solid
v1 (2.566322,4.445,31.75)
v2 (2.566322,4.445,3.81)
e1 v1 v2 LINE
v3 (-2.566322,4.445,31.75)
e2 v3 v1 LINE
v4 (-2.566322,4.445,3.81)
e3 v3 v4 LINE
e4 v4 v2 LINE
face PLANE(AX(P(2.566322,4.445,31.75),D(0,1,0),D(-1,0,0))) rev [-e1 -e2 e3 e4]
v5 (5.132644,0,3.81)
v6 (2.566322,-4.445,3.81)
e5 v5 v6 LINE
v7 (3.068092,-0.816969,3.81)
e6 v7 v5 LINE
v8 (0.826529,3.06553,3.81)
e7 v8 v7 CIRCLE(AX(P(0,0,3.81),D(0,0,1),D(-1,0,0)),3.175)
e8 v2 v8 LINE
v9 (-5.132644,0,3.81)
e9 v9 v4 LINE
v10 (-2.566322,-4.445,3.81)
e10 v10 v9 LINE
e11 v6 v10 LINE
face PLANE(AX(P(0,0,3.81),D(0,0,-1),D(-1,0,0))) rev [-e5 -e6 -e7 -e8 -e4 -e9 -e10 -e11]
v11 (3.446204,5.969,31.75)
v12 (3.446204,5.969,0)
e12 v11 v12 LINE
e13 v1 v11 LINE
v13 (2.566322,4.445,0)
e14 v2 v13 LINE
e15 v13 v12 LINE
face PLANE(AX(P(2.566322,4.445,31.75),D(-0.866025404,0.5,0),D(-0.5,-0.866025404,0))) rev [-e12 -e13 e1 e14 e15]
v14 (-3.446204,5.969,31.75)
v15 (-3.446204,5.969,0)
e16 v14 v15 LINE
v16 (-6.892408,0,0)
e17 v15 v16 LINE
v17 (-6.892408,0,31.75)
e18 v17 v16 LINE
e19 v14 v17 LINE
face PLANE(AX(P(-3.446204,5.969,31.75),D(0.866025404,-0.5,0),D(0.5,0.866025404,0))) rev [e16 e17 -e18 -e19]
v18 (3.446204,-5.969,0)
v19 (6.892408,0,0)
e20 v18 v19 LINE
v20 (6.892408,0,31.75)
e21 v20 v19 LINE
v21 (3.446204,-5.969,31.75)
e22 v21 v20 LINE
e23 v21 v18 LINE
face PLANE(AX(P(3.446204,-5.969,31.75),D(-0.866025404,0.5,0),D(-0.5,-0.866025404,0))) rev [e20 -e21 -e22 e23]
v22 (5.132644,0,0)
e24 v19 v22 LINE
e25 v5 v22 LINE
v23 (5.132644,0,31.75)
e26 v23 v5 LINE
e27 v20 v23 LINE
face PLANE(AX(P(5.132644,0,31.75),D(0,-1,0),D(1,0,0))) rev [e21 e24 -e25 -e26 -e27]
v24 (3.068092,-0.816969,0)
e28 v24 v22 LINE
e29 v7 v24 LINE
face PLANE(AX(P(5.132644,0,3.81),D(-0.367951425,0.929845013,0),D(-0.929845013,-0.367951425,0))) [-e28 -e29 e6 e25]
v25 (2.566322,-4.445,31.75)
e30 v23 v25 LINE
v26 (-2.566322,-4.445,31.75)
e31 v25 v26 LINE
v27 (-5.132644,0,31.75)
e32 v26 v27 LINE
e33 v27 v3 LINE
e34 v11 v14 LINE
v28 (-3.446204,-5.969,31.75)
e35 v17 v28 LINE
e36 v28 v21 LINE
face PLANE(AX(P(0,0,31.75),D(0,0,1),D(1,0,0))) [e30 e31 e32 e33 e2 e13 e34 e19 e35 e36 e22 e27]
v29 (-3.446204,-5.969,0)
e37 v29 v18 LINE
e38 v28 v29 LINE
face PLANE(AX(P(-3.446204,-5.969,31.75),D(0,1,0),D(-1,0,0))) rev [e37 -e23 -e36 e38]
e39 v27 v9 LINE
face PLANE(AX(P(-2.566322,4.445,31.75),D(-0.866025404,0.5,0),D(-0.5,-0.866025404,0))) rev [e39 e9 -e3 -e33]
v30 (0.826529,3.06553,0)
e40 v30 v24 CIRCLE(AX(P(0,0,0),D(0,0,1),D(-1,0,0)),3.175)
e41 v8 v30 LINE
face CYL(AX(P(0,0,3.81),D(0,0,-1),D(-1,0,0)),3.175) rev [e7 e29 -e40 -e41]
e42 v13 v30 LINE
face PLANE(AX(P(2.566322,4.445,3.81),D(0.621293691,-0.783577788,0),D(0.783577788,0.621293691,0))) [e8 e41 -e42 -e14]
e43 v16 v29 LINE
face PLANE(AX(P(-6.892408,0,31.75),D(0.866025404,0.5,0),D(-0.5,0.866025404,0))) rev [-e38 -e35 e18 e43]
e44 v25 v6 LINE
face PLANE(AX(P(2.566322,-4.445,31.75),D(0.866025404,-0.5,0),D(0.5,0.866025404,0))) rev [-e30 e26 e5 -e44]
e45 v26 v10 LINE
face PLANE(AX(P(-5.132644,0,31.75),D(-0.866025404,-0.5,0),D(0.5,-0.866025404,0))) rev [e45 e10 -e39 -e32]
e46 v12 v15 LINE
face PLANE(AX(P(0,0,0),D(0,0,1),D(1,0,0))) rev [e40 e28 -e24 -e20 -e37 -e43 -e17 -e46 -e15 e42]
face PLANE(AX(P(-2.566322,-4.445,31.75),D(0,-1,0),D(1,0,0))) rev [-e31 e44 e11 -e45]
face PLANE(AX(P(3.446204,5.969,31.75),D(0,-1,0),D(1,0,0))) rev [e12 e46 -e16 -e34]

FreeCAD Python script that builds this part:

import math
import FreeCAD as App
import Part
import Sketcher
Q = App.Units.Quantity

doc = App.newDocument("Part")
params = doc.addObject("Spreadsheet::Sheet", "Params")
for row, (alias, value) in enumerate([
    ("pad1_length", "1.25 in"),
    ("sketch2_radius", "0.125 in"),
    ("pad2_length", "0.15 in"),
], start=1):
    params.set(f"A{row}", alias)
    params.set(f"B{row}", "=" + value)
    params.setAlias(f"B{row}", alias)

body = doc.addObject("PartDesign::Body", "Body")

# Sketch on XY plane
sketch1 = doc.addObject("Sketcher::SketchObject", "Sketch")
body.addObject(sketch1)
sketch1.AttachmentSupport = (doc.XY_Plane, [""])
sketch1.MapMode = "FlatFace"
sketch1.addGeometry([
    Part.LineSegment(App.Vector(2.6, 4.4, 0), App.Vector(3.4, 6, 0)),  # 0
    Part.LineSegment(App.Vector(3.4, 6, 0), App.Vector(-3.4, 6, 0)),  # 1
    Part.LineSegment(App.Vector(-3.4, 6, 0), App.Vector(-6.9, 0, 0)),  # 2
    Part.LineSegment(App.Vector(-6.9, 0, 0), App.Vector(-3.4, -6, 0)),  # 3
    Part.LineSegment(App.Vector(-3.4, -6, 0), App.Vector(3.4, -6, 0)),  # 4
    Part.LineSegment(App.Vector(3.4, -6, 0), App.Vector(6.9, 0, 0)),  # 5
    Part.LineSegment(App.Vector(6.9, 0, 0), App.Vector(5.1, 0, 0)),  # 6
    Part.LineSegment(App.Vector(5.1, 0, 0), App.Vector(2.6, -4.4, 0)),  # 7
    Part.LineSegment(App.Vector(2.6, -4.4, 0), App.Vector(-2.6, -4.4, 0)),  # 8
    Part.LineSegment(App.Vector(-2.6, -4.4, 0), App.Vector(-5.1, 0, 0)),  # 9
    Part.LineSegment(App.Vector(-5.1, 0, 0), App.Vector(-2.6, 4.4, 0)),  # 10
    Part.LineSegment(App.Vector(-2.6, 4.4, 0), App.Vector(2.6, 4.4, 0)),  # 11
], False)
sketch1.addConstraint([
    Sketcher.Constraint("Coincident", 0, 2, 1, 1),
    Sketcher.Constraint("Coincident", 1, 2, 2, 1),
    Sketcher.Constraint("Coincident", 2, 2, 3, 1),
    Sketcher.Constraint("Coincident", 3, 2, 4, 1),
    Sketcher.Constraint("Coincident", 4, 2, 5, 1),
    Sketcher.Constraint("Coincident", 5, 2, 6, 1),
    Sketcher.Constraint("Coincident", 6, 2, 7, 1),
    Sketcher.Constraint("Coincident", 7, 2, 8, 1),
    Sketcher.Constraint("Coincident", 8, 2, 9, 1),
    Sketcher.Constraint("Coincident", 9, 2, 10, 1),
    Sketcher.Constraint("Coincident", 10, 2, 11, 1),
    Sketcher.Constraint("Coincident", 11, 2, 0, 1),
    Sketcher.Constraint("Horizontal", 1),
    Sketcher.Constraint("Horizontal", 4),
    Sketcher.Constraint("Horizontal", 6),
    Sketcher.Constraint("Horizontal", 8),
    Sketcher.Constraint("Horizontal", 11),
    Sketcher.Constraint("Symmetric", 0, 2, 3, 2, -1, 1),
    Sketcher.Constraint("Symmetric", 2, 2, 5, 2, -1, 1),
    Sketcher.Constraint("Symmetric", 6, 2, 9, 2, -1, 1),
    Sketcher.Constraint("Symmetric", 7, 2, 10, 2, -1, 1),
    Sketcher.Constraint("PointOnObject", 2, 2, -1),
    Sketcher.Constraint("Parallel", 0, 2),
    Sketcher.Constraint("Parallel", 2, 5),
    Sketcher.Constraint("Parallel", 5, 7),
    Sketcher.Constraint("Parallel", 3, 9),
    Sketcher.Constraint("Vertical", 1, 2, 3, 2),
    Sketcher.Constraint("Vertical", 7, 2, 11, 2),
    Sketcher.Constraint("Angle", 0, Q("60 deg")),
    Sketcher.Constraint("DistanceY", 3, 2, 1, 2, Q("0.47 in")),
    Sketcher.Constraint("DistanceY", 4, 2, 7, 2, Q("0.06 in")),
    Sketcher.Constraint("DistanceX", 1, 2, 1, 1, Q("6.892408 mm")),
])
pad1 = doc.addObject("PartDesign::Pad", "Pad")
body.addObject(pad1)
pad1.Profile = sketch1
pad1.setExpression("Length", "Params.pad1_length")

# Sketch on XY plane
sketch2 = doc.addObject("Sketcher::SketchObject", "Sketch001")
body.addObject(sketch2)
sketch2.AttachmentSupport = (doc.XY_Plane, [""])
sketch2.MapMode = "FlatFace"
sketch2.addGeometry([
    Part.LineSegment(App.Vector(3.1, -0.8, 0), App.Vector(5.1, 0, 0)),  # 0
    Part.LineSegment(App.Vector(5.1, 0, 0), App.Vector(2.6, -4.4, 0)),  # 1
    Part.LineSegment(App.Vector(2.6, -4.4, 0), App.Vector(-2.6, -4.4, 0)),  # 2
    Part.LineSegment(App.Vector(-2.6, -4.4, 0), App.Vector(-5.1, 0, 0)),  # 3
    Part.LineSegment(App.Vector(-5.1, 0, 0), App.Vector(-2.6, 4.4, 0)),  # 4
    Part.LineSegment(App.Vector(-2.6, 4.4, 0), App.Vector(2.6, 4.4, 0)),  # 5
    Part.LineSegment(App.Vector(2.6, 4.4, 0), App.Vector(0.8, 3.1, 0)),  # 6
    Part.ArcOfCircle(Part.Circle(App.Vector(0, 0, 0), App.Vector(0, 0, 1), 3.2), math.radians(75), math.radians(345)),  # 7
], False)
sketch2.addConstraint([
    Sketcher.Constraint("Coincident", 0, 2, 1, 1),
    Sketcher.Constraint("Coincident", 1, 2, 2, 1),
    Sketcher.Constraint("Coincident", 2, 2, 3, 1),
    Sketcher.Constraint("Coincident", 3, 2, 4, 1),
    Sketcher.Constraint("Coincident", 4, 2, 5, 1),
    Sketcher.Constraint("Coincident", 5, 2, 6, 1),
    Sketcher.Constraint("Coincident", 6, 2, 7, 1),
    Sketcher.Constraint("Coincident", 7, 2, 0, 1),
    Sketcher.Constraint("Horizontal", 2),
    Sketcher.Constraint("Horizontal", 5),
    Sketcher.Constraint("Coincident", 7, 3, -1, 1),
    Sketcher.Constraint("Symmetric", 0, 2, 3, 2, -1, 1),
    Sketcher.Constraint("Symmetric", 1, 2, 4, 2, -1, 1),
    Sketcher.Constraint("PointOnObject", 0, 2, -1),
    Sketcher.Constraint("Vertical", 2, 2, 4, 2),
    Sketcher.Constraint("Vertical", 1, 2, 5, 2),
    Sketcher.Constraint("Equal", 0, 6),
    Sketcher.Constraint("Angle", 1, Q("-120 deg")),
    Sketcher.Constraint("Radius", 7, Q("0.125 in")),
    Sketcher.Constraint("DistanceY", 2, 2, 4, 2, Q("0.35 in")),
    Sketcher.Constraint("DistanceY", 7, 2, 6, 2, Q("3.882499 mm")),
    Sketcher.Constraint("Distance", 0, Q("2.220319 mm")),
])
sketch2.setExpression("Constraints[18]", "Params.sketch2_radius")
pad2 = doc.addObject("PartDesign::Pad", "Pad001")
body.addObject(pad2)
pad2.Profile = sketch2
pad2.setExpression("Length", "Params.pad2_length")

doc.recompute()
